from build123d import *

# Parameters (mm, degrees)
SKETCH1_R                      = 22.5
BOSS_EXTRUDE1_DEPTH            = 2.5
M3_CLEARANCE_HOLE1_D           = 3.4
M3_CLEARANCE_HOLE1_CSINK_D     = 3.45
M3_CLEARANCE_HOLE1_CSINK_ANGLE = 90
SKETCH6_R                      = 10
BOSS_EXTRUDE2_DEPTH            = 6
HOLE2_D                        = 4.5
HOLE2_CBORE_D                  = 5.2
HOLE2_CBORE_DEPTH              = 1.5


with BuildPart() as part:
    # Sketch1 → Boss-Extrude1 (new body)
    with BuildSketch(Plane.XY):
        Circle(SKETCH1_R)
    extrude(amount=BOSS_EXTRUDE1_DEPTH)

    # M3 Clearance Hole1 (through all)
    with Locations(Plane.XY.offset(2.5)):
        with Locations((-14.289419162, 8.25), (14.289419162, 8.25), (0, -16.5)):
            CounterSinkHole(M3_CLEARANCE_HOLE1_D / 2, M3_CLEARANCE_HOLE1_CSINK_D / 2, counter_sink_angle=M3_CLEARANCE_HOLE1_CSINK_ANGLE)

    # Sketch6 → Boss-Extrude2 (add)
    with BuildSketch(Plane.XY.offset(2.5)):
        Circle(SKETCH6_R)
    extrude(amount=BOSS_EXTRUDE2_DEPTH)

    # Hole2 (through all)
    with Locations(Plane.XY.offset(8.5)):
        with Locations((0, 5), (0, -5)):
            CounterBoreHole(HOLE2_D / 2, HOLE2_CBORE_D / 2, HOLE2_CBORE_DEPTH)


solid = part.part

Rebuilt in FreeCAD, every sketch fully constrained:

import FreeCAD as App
import Part
import Sketcher
from FreeCAD import Vector
Q = App.Units.Quantity

doc = App.newDocument("Part")
body = doc.addObject("PartDesign::Body", "Body")

# Sketch on XY plane
sketch1 = doc.addObject("Sketcher::SketchObject", "Sketch")
body.addObject(sketch1)
sketch1.AttachmentSupport = (doc.XY_Plane, [""])
sketch1.MapMode = "FlatFace"
sketch1.addGeometry(Part.Circle(Vector(0, 0, 0), Vector(0, 0, 1), 22), False)
sketch1.addConstraint([
    Sketcher.Constraint("Coincident", 0, 3, -1, 1),
    Sketcher.Constraint("Diameter", 0, Q("45 mm")),
])
pad1 = doc.addObject("PartDesign::Pad", "Pad")
body.addObject(pad1)
pad1.Profile = sketch1
pad1.Length = 2.5

# Sketch on XY plane
sketch2 = doc.addObject("Sketcher::SketchObject", "Sketch001")
body.addObject(sketch2)
sketch2.AttachmentSupport = (doc.XY_Plane, [""])
sketch2.MapMode = "FlatFace"
sketch2.AttachmentOffset = App.Placement(Vector(0, 0, 2.5), App.Rotation())
sketch2.addGeometry([
    Part.Circle(Vector(-14.3, 8.2, 0), Vector(0, 0, 1), 1.7),
    Part.Circle(Vector(14.3, 8.2, 0), Vector(0, 0, 1), 1.7),
    Part.Circle(Vector(0, -16.5, 0), Vector(0, 0, 1), 1.7),
], False)
sketch2.addConstraint([
    Sketcher.Constraint("Equal", 0, 1),
    Sketcher.Constraint("Equal", 1, 2),
    Sketcher.Constraint("Symmetric", 0, 3, 1, 3, -2),
    Sketcher.Constraint("PointOnObject", 2, 3, -2),
    Sketcher.Constraint("Diameter", 0, Q("3.4 mm")),
    Sketcher.Constraint("DistanceY", 2, 3, -1, 1, Q("16.5 mm")),
    Sketcher.Constraint("DistanceY", -1, 1, 0, 3, Q("8.25 mm")),
    Sketcher.Constraint("DistanceX", 0, 3, -1, 1, Q("14.289419 mm")),
])
doc.recompute()
hole = doc.addObject("PartDesign::Hole", "Hole")
body.addObject(hole)
hole.Profile = sketch2
hole.ThreadType = "None"
hole.Diameter = 3.4
hole.DepthType = "ThroughAll"
hole.HoleCutType = "Countersink"
hole.HoleCutDiameter = 3.45
hole.HoleCutCountersinkAngle = 90

# Sketch on XY plane
sketch3 = doc.addObject("Sketcher::SketchObject", "Sketch002")
body.addObject(sketch3)
sketch3.AttachmentSupport = (doc.XY_Plane, [""])
sketch3.MapMode = "FlatFace"
sketch3.AttachmentOffset = App.Placement(Vector(0, 0, 2.5), App.Rotation())
sketch3.addGeometry(Part.Circle(Vector(0, 0, 0), Vector(0, 0, 1), 10), False)
sketch3.addConstraint([
    Sketcher.Constraint("Coincident", 0, 3, -1, 1),
    Sketcher.Constraint("Diameter", 0, Q("20 mm")),
])
pad2 = doc.addObject("PartDesign::Pad", "Pad001")
body.addObject(pad2)
pad2.Profile = sketch3
pad2.Length = 6

# Sketch on XY plane
sketch4 = doc.addObject("Sketcher::SketchObject", "Sketch003")
body.addObject(sketch4)
sketch4.AttachmentSupport = (doc.XY_Plane, [""])
sketch4.MapMode = "FlatFace"
sketch4.AttachmentOffset = App.Placement(Vector(0, 0, 8.5), App.Rotation())
sketch4.addGeometry([
    Part.Circle(Vector(0, 5, 0), Vector(0, 0, 1), 2.2),
    Part.Circle(Vector(0, -5, 0), Vector(0, 0, 1), 2.2),
], False)
sketch4.addConstraint([
    Sketcher.Constraint("Equal", 0, 1),
    Sketcher.Constraint("Symmetric", 0, 3, 1, 3, -1, 1),
    Sketcher.Constraint("PointOnObject", 0, 3, -2),
    Sketcher.Constraint("Diameter", 0, Q("4.5 mm")),
    Sketcher.Constraint("DistanceY", -1, 1, 0, 3, Q("5 mm")),
])
doc.recompute()
hole2 = doc.addObject("PartDesign::Hole", "Hole001")
body.addObject(hole2)
hole2.Profile = sketch4
hole2.ThreadType = "None"
hole2.Diameter = 4.5
hole2.DepthType = "ThroughAll"
hole2.HoleCutType = "Counterbore"
hole2.HoleCutDiameter = 5.2
hole2.HoleCutDepth = 1.5

doc.recompute()
